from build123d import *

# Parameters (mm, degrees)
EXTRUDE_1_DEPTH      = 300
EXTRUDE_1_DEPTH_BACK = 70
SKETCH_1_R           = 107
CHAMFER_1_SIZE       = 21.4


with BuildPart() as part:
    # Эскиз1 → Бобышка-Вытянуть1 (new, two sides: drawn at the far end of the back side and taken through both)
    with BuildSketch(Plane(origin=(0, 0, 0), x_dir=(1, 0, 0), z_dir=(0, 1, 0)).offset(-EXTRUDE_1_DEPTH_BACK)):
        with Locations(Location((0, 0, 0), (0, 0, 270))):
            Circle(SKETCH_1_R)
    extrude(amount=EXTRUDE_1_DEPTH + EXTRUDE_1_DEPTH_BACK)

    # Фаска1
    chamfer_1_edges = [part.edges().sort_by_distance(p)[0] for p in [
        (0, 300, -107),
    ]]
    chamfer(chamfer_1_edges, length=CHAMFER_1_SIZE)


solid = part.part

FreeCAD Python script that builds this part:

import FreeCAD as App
import Part
import Sketcher
from FreeCAD import Vector


def edges_at(feature, points):
    """Names of the edges that pass closest to the given points."""
    edges = feature.Shape.Edges
    near = lambda p: min(range(len(edges)), key=lambda i: edges[i].distToShape(Part.Vertex(*p))[0])
    return sorted({f"Edge{near(p) + 1}" for p in points})

doc = App.newDocument("Part")
params = doc.addObject("Spreadsheet::Sheet", "Params")
for row, (alias, value) in enumerate([
    ("sketch1_diameter", "214 mm"),
    ("pad1_length", "300 mm"),
    ("pad1_length2", "70 mm"),
    ("chamfer_size", "21.4 mm"),
], start=1):
    params.set(f"A{row}", alias)
    params.set(f"B{row}", "=" + value)
    params.setAlias(f"B{row}", alias)

body = doc.addObject("PartDesign::Body", "Body")

# Sketch on XZ plane
sketch1 = body.newObject("Sketcher::SketchObject", "Sketch")
sketch1.AttachmentSupport = (doc.getObject("XZ_Plane"), [""])
sketch1.MapMode = "FlatFace"
sketch1.addGeometry(Part.Circle(Vector(0, 0, 0), Vector(0, 0, 1), 107), False)
sketch1.addConstraint(Sketcher.Constraint("Coincident", 0, 3, -1, 1))
sketch1.addConstraint(Sketcher.Constraint("Diameter", 0, 214.0))
sketch1.setExpression("Constraints[1]", "Params.sketch1_diameter")
pad1 = body.newObject("PartDesign::Pad", "Pad")
pad1.Profile = sketch1
pad1.Type = "TwoLengths"
pad1.setExpression("Length", "Params.pad1_length")
pad1.setExpression("Length2", "Params.pad1_length2")
pad1.Reversed = True
doc.recompute()

chamfer = body.newObject("PartDesign::Chamfer", "Chamfer")
chamfer.Base = (pad1, edges_at(pad1, [(0, 300, -107)]))
chamfer.setExpression("Size", "Params.chamfer_size")

doc.recompute()
